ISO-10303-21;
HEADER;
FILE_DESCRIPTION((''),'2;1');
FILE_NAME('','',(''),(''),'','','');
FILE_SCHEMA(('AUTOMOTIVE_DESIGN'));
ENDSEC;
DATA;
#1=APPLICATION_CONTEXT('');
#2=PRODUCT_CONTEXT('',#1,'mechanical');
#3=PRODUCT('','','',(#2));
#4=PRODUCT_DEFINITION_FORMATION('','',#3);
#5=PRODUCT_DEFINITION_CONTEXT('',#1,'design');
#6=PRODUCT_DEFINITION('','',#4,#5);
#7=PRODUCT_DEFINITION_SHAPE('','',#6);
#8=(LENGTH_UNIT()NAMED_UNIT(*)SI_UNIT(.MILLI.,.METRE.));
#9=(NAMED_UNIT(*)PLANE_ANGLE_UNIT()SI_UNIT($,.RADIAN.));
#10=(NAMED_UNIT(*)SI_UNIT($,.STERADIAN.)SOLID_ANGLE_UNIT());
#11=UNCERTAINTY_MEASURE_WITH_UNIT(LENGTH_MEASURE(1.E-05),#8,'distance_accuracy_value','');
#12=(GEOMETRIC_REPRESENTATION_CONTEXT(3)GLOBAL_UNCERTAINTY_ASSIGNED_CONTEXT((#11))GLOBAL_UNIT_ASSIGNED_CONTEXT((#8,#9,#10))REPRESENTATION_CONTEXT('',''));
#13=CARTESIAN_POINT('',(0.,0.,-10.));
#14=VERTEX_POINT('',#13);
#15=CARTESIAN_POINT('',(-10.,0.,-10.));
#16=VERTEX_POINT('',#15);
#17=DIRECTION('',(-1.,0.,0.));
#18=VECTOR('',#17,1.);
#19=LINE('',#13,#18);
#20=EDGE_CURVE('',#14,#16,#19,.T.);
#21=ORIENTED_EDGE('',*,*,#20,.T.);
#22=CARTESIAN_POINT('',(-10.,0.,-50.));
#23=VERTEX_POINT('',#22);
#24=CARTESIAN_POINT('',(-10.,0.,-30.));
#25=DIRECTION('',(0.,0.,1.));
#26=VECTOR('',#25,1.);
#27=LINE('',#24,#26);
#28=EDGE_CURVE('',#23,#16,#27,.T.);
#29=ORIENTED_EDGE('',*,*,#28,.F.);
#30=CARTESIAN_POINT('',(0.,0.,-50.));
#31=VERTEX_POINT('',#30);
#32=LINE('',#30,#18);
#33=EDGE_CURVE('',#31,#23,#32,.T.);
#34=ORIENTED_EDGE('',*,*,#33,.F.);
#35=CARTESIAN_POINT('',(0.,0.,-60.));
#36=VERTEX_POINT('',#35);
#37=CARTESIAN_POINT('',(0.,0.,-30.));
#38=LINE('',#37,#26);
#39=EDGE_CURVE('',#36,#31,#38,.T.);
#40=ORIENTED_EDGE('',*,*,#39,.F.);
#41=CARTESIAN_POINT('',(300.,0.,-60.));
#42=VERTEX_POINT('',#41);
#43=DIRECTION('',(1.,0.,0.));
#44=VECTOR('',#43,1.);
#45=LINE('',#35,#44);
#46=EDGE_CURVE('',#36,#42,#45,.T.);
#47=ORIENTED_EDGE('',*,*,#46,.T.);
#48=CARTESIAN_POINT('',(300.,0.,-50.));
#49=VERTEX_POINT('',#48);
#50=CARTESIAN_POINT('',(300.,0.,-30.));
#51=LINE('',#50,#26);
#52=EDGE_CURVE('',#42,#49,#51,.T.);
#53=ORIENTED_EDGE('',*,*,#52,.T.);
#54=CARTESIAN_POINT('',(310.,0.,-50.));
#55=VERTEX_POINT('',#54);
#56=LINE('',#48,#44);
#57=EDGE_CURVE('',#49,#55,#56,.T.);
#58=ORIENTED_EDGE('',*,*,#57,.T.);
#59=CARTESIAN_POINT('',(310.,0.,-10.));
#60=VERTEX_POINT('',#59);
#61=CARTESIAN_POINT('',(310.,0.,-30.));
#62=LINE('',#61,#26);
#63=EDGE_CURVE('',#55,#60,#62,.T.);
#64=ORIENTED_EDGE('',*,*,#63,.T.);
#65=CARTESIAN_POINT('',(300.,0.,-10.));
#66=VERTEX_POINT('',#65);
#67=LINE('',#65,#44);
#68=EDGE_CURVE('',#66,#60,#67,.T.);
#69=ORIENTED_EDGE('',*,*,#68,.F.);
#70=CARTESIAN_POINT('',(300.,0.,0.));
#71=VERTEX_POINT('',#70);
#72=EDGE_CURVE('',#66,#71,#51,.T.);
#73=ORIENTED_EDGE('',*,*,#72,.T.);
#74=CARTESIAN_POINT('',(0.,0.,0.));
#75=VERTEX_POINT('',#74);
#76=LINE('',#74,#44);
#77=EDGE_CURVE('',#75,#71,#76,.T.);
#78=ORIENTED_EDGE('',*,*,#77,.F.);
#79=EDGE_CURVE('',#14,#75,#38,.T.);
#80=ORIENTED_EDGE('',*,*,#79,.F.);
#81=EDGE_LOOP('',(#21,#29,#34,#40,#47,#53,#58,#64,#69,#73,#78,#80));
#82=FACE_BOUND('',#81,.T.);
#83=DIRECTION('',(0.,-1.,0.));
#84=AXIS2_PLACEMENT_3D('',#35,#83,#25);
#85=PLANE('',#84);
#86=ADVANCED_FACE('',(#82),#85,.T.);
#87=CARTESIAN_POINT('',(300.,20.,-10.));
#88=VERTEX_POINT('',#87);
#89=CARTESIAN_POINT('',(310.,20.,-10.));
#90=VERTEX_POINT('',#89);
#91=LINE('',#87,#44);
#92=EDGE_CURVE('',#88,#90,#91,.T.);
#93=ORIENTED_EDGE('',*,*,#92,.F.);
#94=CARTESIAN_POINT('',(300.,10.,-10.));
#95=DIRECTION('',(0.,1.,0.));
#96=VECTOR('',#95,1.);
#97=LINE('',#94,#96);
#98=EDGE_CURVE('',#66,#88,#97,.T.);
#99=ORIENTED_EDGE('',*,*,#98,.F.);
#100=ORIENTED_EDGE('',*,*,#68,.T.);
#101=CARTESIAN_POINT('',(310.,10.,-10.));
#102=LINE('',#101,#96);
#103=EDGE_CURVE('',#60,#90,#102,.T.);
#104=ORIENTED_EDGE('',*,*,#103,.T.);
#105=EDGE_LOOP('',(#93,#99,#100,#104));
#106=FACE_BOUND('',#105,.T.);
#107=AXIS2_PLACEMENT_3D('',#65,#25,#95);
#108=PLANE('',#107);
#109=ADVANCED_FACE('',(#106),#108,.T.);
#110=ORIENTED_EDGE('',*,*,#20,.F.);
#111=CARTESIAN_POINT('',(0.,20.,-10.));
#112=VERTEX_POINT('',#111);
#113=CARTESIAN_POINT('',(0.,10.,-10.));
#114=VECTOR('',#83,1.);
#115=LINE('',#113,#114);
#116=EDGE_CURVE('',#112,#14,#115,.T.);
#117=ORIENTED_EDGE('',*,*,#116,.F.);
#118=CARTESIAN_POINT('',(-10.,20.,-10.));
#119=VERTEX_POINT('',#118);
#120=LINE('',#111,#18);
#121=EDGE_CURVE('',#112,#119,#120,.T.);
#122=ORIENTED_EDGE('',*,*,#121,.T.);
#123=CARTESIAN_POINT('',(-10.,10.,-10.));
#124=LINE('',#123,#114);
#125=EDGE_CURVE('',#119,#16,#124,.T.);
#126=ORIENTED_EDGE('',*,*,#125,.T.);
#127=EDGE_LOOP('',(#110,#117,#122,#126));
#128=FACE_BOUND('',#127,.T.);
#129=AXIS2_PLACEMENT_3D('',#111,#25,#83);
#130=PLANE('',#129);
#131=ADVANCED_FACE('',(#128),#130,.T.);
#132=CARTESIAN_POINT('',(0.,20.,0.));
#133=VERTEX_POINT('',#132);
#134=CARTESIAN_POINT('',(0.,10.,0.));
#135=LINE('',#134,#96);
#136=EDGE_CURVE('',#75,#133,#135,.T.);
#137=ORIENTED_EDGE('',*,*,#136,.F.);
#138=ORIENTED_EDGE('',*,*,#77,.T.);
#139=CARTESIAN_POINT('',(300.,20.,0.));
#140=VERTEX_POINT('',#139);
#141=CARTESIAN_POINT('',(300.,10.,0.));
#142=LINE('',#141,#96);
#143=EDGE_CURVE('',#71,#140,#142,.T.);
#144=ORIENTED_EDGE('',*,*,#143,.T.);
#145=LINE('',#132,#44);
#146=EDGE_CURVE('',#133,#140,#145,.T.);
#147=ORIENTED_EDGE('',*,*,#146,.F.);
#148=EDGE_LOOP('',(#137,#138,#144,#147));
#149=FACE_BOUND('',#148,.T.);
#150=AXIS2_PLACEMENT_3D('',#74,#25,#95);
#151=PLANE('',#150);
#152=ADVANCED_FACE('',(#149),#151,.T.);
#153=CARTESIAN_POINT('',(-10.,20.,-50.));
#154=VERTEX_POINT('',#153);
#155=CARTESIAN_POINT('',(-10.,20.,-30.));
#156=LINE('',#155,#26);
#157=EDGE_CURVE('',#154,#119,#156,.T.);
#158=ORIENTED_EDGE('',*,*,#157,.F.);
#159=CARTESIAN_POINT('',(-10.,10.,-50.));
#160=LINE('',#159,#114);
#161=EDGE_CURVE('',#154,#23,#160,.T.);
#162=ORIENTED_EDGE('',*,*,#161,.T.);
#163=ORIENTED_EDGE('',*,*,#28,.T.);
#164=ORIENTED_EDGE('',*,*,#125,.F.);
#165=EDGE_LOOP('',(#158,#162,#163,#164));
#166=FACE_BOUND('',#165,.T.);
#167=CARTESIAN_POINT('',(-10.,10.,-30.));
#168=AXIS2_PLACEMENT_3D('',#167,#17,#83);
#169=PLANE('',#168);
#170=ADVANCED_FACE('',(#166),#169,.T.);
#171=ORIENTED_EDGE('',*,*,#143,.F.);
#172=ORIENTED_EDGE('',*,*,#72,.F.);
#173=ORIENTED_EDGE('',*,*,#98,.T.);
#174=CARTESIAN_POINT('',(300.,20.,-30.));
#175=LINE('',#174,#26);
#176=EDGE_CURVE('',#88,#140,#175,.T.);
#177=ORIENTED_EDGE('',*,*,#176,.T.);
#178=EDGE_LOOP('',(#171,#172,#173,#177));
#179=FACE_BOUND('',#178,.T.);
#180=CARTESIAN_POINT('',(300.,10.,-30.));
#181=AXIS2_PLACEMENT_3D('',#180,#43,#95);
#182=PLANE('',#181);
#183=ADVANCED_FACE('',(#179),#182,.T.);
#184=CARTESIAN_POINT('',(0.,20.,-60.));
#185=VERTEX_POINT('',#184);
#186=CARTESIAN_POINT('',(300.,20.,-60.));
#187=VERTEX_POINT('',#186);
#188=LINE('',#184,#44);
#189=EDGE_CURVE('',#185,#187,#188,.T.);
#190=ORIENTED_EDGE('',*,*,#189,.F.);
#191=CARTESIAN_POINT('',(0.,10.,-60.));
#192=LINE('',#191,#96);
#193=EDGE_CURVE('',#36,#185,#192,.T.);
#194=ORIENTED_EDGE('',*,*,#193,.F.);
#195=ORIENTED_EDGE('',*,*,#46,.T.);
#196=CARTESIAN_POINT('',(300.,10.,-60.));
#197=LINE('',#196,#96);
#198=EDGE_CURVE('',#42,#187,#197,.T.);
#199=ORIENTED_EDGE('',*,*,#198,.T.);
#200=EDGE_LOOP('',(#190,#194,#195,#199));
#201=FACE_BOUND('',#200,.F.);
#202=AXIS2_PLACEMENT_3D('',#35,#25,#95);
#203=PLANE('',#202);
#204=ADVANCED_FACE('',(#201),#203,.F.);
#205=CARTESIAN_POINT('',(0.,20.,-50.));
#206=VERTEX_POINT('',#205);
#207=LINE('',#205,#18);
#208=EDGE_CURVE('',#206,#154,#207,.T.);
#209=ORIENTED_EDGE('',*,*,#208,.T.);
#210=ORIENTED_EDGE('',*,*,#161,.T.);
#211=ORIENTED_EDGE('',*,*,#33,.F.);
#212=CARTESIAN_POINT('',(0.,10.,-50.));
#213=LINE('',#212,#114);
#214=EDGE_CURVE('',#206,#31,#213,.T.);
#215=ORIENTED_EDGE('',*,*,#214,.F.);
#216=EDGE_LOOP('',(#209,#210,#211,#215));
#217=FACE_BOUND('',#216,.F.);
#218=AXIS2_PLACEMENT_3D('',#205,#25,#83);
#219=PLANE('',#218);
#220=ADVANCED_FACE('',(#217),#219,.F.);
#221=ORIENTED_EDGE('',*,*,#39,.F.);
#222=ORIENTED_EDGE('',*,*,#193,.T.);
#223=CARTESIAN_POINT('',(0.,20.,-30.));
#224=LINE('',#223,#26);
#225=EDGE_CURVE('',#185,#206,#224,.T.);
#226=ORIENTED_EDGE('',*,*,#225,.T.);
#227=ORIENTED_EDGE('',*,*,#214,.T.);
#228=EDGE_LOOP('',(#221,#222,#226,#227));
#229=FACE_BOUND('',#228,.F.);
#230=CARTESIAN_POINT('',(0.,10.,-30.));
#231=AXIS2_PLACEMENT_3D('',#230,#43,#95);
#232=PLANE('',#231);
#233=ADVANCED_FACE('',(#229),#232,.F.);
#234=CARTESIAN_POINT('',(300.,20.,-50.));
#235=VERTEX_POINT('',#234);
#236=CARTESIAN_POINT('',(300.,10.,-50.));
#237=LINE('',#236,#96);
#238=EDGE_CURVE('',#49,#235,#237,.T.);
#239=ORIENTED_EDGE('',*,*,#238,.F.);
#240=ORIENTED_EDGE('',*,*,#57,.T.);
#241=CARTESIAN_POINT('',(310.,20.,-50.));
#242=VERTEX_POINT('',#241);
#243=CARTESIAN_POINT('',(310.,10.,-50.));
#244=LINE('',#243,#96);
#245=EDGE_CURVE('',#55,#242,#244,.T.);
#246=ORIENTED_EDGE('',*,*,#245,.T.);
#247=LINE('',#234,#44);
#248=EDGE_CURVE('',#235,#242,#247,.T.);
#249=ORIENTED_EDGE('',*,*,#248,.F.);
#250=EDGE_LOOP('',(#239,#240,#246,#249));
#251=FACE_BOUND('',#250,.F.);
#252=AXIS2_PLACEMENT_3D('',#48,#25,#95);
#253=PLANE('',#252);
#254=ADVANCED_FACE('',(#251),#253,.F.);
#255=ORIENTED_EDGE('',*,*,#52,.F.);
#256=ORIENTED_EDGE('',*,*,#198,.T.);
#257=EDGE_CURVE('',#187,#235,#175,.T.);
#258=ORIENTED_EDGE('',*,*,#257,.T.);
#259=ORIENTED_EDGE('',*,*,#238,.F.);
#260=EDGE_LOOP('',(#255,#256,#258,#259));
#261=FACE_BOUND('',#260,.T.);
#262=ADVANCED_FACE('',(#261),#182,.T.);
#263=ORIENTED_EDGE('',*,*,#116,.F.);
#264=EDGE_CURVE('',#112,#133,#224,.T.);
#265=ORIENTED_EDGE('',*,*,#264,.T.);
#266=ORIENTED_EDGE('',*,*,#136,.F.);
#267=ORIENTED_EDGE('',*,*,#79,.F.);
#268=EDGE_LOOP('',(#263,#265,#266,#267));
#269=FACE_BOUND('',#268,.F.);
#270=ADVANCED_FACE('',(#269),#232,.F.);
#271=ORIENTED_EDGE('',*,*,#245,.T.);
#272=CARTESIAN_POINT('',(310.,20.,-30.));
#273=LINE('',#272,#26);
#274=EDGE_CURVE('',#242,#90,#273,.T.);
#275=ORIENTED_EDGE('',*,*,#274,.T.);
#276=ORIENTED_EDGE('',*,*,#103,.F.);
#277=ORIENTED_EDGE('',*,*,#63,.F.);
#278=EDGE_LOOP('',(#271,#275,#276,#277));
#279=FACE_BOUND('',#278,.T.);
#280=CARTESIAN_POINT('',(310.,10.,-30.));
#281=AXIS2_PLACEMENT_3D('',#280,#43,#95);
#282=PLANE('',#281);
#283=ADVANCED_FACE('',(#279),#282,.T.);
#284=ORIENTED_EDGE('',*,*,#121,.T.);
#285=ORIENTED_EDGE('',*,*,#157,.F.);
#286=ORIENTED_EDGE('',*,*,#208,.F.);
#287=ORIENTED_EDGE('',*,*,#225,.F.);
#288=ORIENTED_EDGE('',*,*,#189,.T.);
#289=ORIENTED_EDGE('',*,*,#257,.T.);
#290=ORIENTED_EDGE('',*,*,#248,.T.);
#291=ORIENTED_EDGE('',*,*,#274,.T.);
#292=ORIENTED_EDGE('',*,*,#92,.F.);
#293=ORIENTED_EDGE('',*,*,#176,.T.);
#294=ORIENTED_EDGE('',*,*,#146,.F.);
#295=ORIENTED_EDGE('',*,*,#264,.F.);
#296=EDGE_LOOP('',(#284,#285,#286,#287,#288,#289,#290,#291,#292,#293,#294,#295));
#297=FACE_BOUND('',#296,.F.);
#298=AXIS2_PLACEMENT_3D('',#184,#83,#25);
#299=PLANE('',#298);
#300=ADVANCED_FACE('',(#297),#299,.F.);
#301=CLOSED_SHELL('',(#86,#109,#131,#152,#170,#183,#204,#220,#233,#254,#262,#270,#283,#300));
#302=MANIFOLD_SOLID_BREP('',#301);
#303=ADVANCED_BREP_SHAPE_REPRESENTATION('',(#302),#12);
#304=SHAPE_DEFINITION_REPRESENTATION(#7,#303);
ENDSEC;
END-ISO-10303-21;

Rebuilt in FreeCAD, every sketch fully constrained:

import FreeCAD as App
import Part
import Sketcher

V = App.Vector
Q = App.Units.Quantity


def add_polygon(sketch, points):
    """Adds a closed chain of lines whose ends are joined by coincident constraints."""
    first, n = sketch.GeometryCount, len(points)
    for a, b in zip(points, points[1:] + points[:1]):
        sketch.addGeometry(Part.LineSegment(App.Vector(*a, 0), App.Vector(*b, 0)), False)
    for i in range(n):
        sketch.addConstraint(Sketcher.Constraint("Coincident", first + i, 2, first + (i + 1) % n, 1))

doc = App.newDocument("Part")
body = doc.addObject("PartDesign::Body", "Body")

# Sketch on YZ plane
sketch1 = body.newObject("Sketcher::SketchObject", "Sketch")
sketch1.AttachmentSupport = (doc.getObject("YZ_Plane"), [""])
sketch1.MapMode = "FlatFace"
add_polygon(sketch1, [(0, 0), (0, -60), (20, -60), (20, 0)])  # lines 0-3
sketch1.addConstraint([
    Sketcher.Constraint("Vertical", 0),
    Sketcher.Constraint("Horizontal", 1),
    Sketcher.Constraint("Vertical", 2),
    Sketcher.Constraint("Horizontal", 3),
    Sketcher.Constraint("Coincident", 3, 2, -1, 1),
    Sketcher.Constraint("DistanceX", 1, 1, 1, 2, Q("20 mm")),
    Sketcher.Constraint("DistanceY", 0, 2, 0, 1, Q("60 mm")),
])
pad1 = body.newObject("PartDesign::Pad", "Pad")
pad1.Profile = sketch1
pad1.Length = 300

# Sketch on YZ plane
sketch2 = body.newObject("Sketcher::SketchObject", "Sketch001")
sketch2.AttachmentSupport = (doc.getObject("YZ_Plane"), [""])
sketch2.MapMode = "FlatFace"
add_polygon(sketch2, [(20, -10), (20, -50), (0, -50), (0, -10)])  # lines 0-3
sketch2.addConstraint([
    Sketcher.Constraint("Vertical", 0),
    Sketcher.Constraint("Horizontal", 1),
    Sketcher.Constraint("Vertical", 2),
    Sketcher.Constraint("Horizontal", 3),
    Sketcher.Constraint("PointOnObject", 1, 2, -2),
    Sketcher.Constraint("DistanceX", 1, 2, 1, 1, Q("20 mm")),
    Sketcher.Constraint("DistanceY", 0, 2, 0, 1, Q("40 mm")),
    Sketcher.Constraint("DistanceY", 0, 2, -1, 1, Q("50 mm")),
])
pad2 = body.newObject("PartDesign::Pad", "Pad001")
pad2.Profile = sketch2
pad2.Length = 10
pad2.Reversed = True

# Sketch on YZ plane
sketch3 = body.newObject("Sketcher::SketchObject", "Sketch002")
sketch3.AttachmentSupport = (doc.getObject("YZ_Plane"), [""])
sketch3.MapMode = "FlatFace"
sketch3.AttachmentOffset = App.Placement(V(0, 0, 300), App.Rotation())
add_polygon(sketch3, [(0, -10), (0, -50), (20, -50), (20, -10)])  # lines 0-3
sketch3.addConstraint([
    Sketcher.Constraint("Vertical", 0),
    Sketcher.Constraint("Horizontal", 1),
    Sketcher.Constraint("Vertical", 2),
    Sketcher.Constraint("Horizontal", 3),
    Sketcher.Constraint("PointOnObject", 0, 2, -2),
    Sketcher.Constraint("DistanceX", 1, 1, 1, 2, Q("20 mm")),
    Sketcher.Constraint("DistanceY", 0, 2, 0, 1, Q("40 mm")),
    Sketcher.Constraint("DistanceY", 0, 2, -1, 1, Q("50 mm")),
])
pad3 = body.newObject("PartDesign::Pad", "Pad002")
pad3.Profile = sketch3
pad3.Length = 10

doc.recompute()
